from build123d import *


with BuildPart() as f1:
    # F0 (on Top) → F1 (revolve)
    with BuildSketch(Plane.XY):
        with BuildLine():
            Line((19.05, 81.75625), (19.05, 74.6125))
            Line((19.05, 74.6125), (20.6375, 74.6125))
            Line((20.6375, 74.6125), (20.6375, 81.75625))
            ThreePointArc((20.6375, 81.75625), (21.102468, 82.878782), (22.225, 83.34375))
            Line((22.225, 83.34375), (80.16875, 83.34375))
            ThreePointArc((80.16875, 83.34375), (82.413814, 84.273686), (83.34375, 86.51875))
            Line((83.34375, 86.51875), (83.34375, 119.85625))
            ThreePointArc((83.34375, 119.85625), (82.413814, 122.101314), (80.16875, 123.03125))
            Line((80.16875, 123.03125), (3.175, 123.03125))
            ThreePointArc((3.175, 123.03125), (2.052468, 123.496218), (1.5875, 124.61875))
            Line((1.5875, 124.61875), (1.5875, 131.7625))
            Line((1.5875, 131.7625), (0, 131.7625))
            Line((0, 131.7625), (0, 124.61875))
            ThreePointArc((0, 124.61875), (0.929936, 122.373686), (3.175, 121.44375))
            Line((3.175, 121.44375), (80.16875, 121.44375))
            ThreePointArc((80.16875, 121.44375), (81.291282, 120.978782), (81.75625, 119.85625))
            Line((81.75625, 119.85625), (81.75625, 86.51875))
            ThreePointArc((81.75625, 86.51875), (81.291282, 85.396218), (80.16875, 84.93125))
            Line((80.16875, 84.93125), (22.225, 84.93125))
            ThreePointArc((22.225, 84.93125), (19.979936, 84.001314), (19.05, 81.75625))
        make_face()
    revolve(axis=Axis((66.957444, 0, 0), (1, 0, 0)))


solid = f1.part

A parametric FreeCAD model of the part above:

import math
import FreeCAD as App
import Part
import Sketcher

V = App.Vector
Q = App.Units.Quantity

doc = App.newDocument("Part")
body = doc.addObject("PartDesign::Body", "Body")

# Sketch on XY plane
sketch1 = body.newObject("Sketcher::SketchObject", "Sketch")
sketch1.AttachmentSupport = (doc.getObject("XY_Plane"), [""])
sketch1.MapMode = "FlatFace"
sketch1.addGeometry([
    Part.LineSegment(V(19.1, 81.8, 0), V(19.1, 74.6, 0)),  # 0
    Part.LineSegment(V(19.1, 74.6, 0), V(20.6, 74.6, 0)),  # 1
    Part.LineSegment(V(20.6, 74.6, 0), V(20.6, 81.8, 0)),  # 2
    Part.ArcOfCircle(Part.Circle(V(22.2, 81.8, 0), V(0, 0, 1), 1.6), math.radians(90), math.radians(180)),  # 3
    Part.LineSegment(V(22.2, 83.3, 0), V(80.2, 83.3, 0)),  # 4
    Part.ArcOfCircle(Part.Circle(V(80.2, 86.5, 0), V(0, 0, 1), 3.2), math.radians(-90), math.radians(0)),  # 5
    Part.LineSegment(V(83.3, 86.5, 0), V(83.3, 119.9, 0)),  # 6
    Part.ArcOfCircle(Part.Circle(V(80.2, 119.9, 0), V(0, 0, 1), 3.2), math.radians(0), math.radians(90)),  # 7
    Part.LineSegment(V(80.2, 123, 0), V(3.2, 123, 0)),  # 8
    Part.ArcOfCircle(Part.Circle(V(3.2, 124.6, 0), V(0, 0, 1), 1.6), math.radians(-180), math.radians(-90)),  # 9
    Part.LineSegment(V(1.6, 124.6, 0), V(1.6, 131.8, 0)),  # 10
    Part.LineSegment(V(1.6, 131.8, 0), V(0, 131.8, 0)),  # 11
    Part.LineSegment(V(0, 131.8, 0), V(0, 124.6, 0)),  # 12
    Part.ArcOfCircle(Part.Circle(V(3.2, 124.6, 0), V(0, 0, 1), 3.2), math.radians(-180), math.radians(-90)),  # 13
    Part.LineSegment(V(3.2, 121.4, 0), V(80.2, 121.4, 0)),  # 14
    Part.ArcOfCircle(Part.Circle(V(80.2, 119.9, 0), V(0, 0, 1), 1.6), math.radians(0), math.radians(90)),  # 15
    Part.LineSegment(V(81.8, 119.9, 0), V(81.8, 86.5, 0)),  # 16
    Part.ArcOfCircle(Part.Circle(V(80.2, 86.5, 0), V(0, 0, 1), 1.6), math.radians(-90), math.radians(0)),  # 17
    Part.LineSegment(V(80.2, 84.9, 0), V(22.2, 84.9, 0)),  # 18
    Part.ArcOfCircle(Part.Circle(V(22.2, 81.8, 0), V(0, 0, 1), 3.2), math.radians(90), math.radians(180)),  # 19
], False)
sketch1.addConstraint([
    Sketcher.Constraint("Coincident", 0, 2, 1, 1),
    Sketcher.Constraint("Coincident", 1, 2, 2, 1),
    Sketcher.Constraint("Tangent", 2, 2, 3, 2),
    Sketcher.Constraint("Tangent", 3, 1, 4, 1),
    Sketcher.Constraint("Tangent", 4, 2, 5, 1),
    Sketcher.Constraint("Tangent", 5, 2, 6, 1),
    Sketcher.Constraint("Tangent", 6, 2, 7, 1),
    Sketcher.Constraint("Tangent", 7, 2, 8, 1),
    Sketcher.Constraint("Tangent", 8, 2, 9, 2),
    Sketcher.Constraint("Tangent", 9, 1, 10, 1),
    Sketcher.Constraint("Coincident", 10, 2, 11, 1),
    Sketcher.Constraint("Coincident", 11, 2, 12, 1),
    Sketcher.Constraint("Tangent", 12, 2, 13, 1),
    Sketcher.Constraint("Tangent", 13, 2, 14, 1),
    Sketcher.Constraint("Tangent", 14, 2, 15, 2),
    Sketcher.Constraint("Tangent", 15, 1, 16, 1),
    Sketcher.Constraint("Tangent", 16, 2, 17, 2),
    Sketcher.Constraint("Tangent", 17, 1, 18, 1),
    Sketcher.Constraint("Tangent", 18, 2, 19, 1),
    Sketcher.Constraint("Tangent", 19, 2, 0, 1),
    Sketcher.Constraint("Vertical", 0),
    Sketcher.Constraint("Horizontal", 1),
    Sketcher.Constraint("Vertical", 2),
    Sketcher.Constraint("Horizontal", 4),
    Sketcher.Constraint("Vertical", 6),
    Sketcher.Constraint("Horizontal", 8),
    Sketcher.Constraint("Vertical", 10),
    Sketcher.Constraint("Horizontal", 11),
    Sketcher.Constraint("Vertical", 12),
    Sketcher.Constraint("Horizontal", 14),
    Sketcher.Constraint("Vertical", 16),
    Sketcher.Constraint("Horizontal", 18),
    Sketcher.Constraint("Coincident", 13, 3, 9, 3),
    Sketcher.Constraint("Coincident", 15, 3, 7, 3),
    Sketcher.Constraint("Coincident", 17, 3, 5, 3),
    Sketcher.Constraint("Coincident", 19, 3, 3, 3),
    Sketcher.Constraint("Equal", 5, 7),
    Sketcher.Constraint("Equal", 3, 9),
    Sketcher.Constraint("Equal", 7, 13),
    Sketcher.Constraint("PointOnObject", 11, 2, -2),
    Sketcher.Constraint("Equal", 2, 10),
    Sketcher.Constraint("Radius", 3, Q("0.0625 in")),
    Sketcher.Constraint("Radius", 5, Q("0.125 in")),
    Sketcher.Constraint("DistanceY", 3, 3, 7, 3, Q("1.5 in")),
    Sketcher.Constraint("DistanceX", 4, 1, 4, 2, Q("2.28125 in")),
    Sketcher.Constraint("DistanceX", 8, 2, 8, 1, Q("3.03125 in")),
    Sketcher.Constraint("DistanceY", 0, 2, 0, 1, Q("0.28125 in")),
    Sketcher.Constraint("DistanceY", -1, 1, 3, 3, Q("3.21875 in")),
])
revolution = body.newObject("PartDesign::Revolution", "Revolution")
revolution.Profile = sketch1
revolution.ReferenceAxis = (sketch1, ["H_Axis"])
revolution.Angle = 360

doc.recompute()
